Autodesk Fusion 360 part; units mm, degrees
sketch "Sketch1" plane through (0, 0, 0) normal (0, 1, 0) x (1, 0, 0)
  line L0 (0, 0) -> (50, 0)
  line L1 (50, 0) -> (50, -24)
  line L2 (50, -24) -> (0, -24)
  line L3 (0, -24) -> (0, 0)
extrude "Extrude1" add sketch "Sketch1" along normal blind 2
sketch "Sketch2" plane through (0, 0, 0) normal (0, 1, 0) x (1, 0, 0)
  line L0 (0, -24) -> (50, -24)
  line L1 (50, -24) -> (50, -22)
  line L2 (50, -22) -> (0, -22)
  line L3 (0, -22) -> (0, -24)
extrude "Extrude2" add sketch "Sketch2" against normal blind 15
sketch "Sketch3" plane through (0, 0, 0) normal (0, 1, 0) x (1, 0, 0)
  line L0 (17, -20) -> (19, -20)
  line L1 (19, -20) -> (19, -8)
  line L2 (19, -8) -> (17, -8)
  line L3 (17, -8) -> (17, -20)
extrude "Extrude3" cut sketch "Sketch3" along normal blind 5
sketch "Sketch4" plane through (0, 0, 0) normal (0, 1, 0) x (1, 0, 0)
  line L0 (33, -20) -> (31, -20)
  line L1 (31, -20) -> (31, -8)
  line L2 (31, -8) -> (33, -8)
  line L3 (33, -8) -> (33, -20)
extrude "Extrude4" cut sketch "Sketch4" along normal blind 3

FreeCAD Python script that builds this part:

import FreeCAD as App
import Part
import Sketcher

doc = App.newDocument("Part")
params = doc.addObject("Spreadsheet::Sheet", "Params")
for row, (alias, value) in enumerate([
    ("sketch1_width", "50 mm"),
    ("sketch1_height", "24 mm"),
    ("pad1_length", "2 mm"),
    ("sketch2_width", "50 mm"),
    ("sketch2_height", "2 mm"),
    ("pad2_length", "15 mm"),
    ("sketch3_width", "2 mm"),
    ("sketch3_height", "12 mm"),
    ("pocket1_length", "5 mm"),
    ("sketch4_width", "2 mm"),
    ("sketch4_height", "12 mm"),
    ("pocket2_length", "3 mm"),
], start=1):
    params.set(f"A{row}", alias)
    params.set(f"B{row}", "=" + value)
    params.setAlias(f"B{row}", alias)

body = doc.addObject("PartDesign::Body", "Body")

sketch1 = body.newObject("Sketcher::SketchObject", "Sketch")
sketch1.AttachmentSupport = (doc.getObject("XZ_Plane"), [""])
sketch1.MapMode = "FlatFace"
sketch1.addGeometry(Part.LineSegment(App.Vector(50, 0, 0), App.Vector(0, 0, 0)), False)
sketch1.addGeometry(Part.LineSegment(App.Vector(0, 0, 0), App.Vector(0, 24, 0)), False)
sketch1.addGeometry(Part.LineSegment(App.Vector(0, 24, 0), App.Vector(50, 24, 0)), False)
sketch1.addGeometry(Part.LineSegment(App.Vector(50, 24, 0), App.Vector(50, 0, 0)), False)
sketch1.addConstraint(Sketcher.Constraint("Coincident", 0, 2, 1, 1))
sketch1.addConstraint(Sketcher.Constraint("Coincident", 1, 2, 2, 1))
sketch1.addConstraint(Sketcher.Constraint("Coincident", 2, 2, 3, 1))
sketch1.addConstraint(Sketcher.Constraint("Coincident", 3, 2, 0, 1))
sketch1.addConstraint(Sketcher.Constraint("Horizontal", 0))
sketch1.addConstraint(Sketcher.Constraint("Vertical", 1))
sketch1.addConstraint(Sketcher.Constraint("Horizontal", 2))
sketch1.addConstraint(Sketcher.Constraint("Vertical", 3))
sketch1.addConstraint(Sketcher.Constraint("Coincident", 0, 2, -1, 1))
sketch1.addConstraint(Sketcher.Constraint("DistanceX", 0, 2, 0, 1, 50.0))
sketch1.addConstraint(Sketcher.Constraint("DistanceY", 1, 1, 1, 2, 24.0))
sketch1.setExpression("Constraints[9]", "Params.sketch1_width")
sketch1.setExpression("Constraints[10]", "Params.sketch1_height")
pad1 = body.newObject("PartDesign::Pad", "Pad")
pad1.Profile = sketch1
pad1.setExpression("Length", "Params.pad1_length")
pad1.Reversed = True

sketch2 = body.newObject("Sketcher::SketchObject", "Sketch001")
sketch2.AttachmentSupport = (doc.getObject("XZ_Plane"), [""])
sketch2.MapMode = "FlatFace"
sketch2.addGeometry(Part.LineSegment(App.Vector(0, 22, 0), App.Vector(0, 24, 0)), False)
sketch2.addGeometry(Part.LineSegment(App.Vector(0, 24, 0), App.Vector(50, 24, 0)), False)
sketch2.addGeometry(Part.LineSegment(App.Vector(50, 24, 0), App.Vector(50, 22, 0)), False)
sketch2.addGeometry(Part.LineSegment(App.Vector(50, 22, 0), App.Vector(0, 22, 0)), False)
sketch2.addConstraint(Sketcher.Constraint("Coincident", 0, 2, 1, 1))
sketch2.addConstraint(Sketcher.Constraint("Coincident", 1, 2, 2, 1))
sketch2.addConstraint(Sketcher.Constraint("Coincident", 2, 2, 3, 1))
sketch2.addConstraint(Sketcher.Constraint("Coincident", 3, 2, 0, 1))
sketch2.addConstraint(Sketcher.Constraint("Vertical", 0))
sketch2.addConstraint(Sketcher.Constraint("Horizontal", 1))
sketch2.addConstraint(Sketcher.Constraint("Vertical", 2))
sketch2.addConstraint(Sketcher.Constraint("Horizontal", 3))
sketch2.addConstraint(Sketcher.Constraint("PointOnObject", 0, 2, -2))
sketch2.addConstraint(Sketcher.Constraint("DistanceX", 1, 1, 1, 2, 50.0))
sketch2.addConstraint(Sketcher.Constraint("DistanceY", 0, 1, 0, 2, 2.0))
sketch2.addConstraint(Sketcher.Constraint("DistanceY", -1, 1, 0, 2, 24.0))
sketch2.setExpression("Constraints[9]", "Params.sketch2_width")
sketch2.setExpression("Constraints[10]", "Params.sketch2_height")
pad2 = body.newObject("PartDesign::Pad", "Pad001")
pad2.Profile = sketch2
pad2.setExpression("Length", "Params.pad2_length")

sketch3 = body.newObject("Sketcher::SketchObject", "Sketch002")
sketch3.AttachmentSupport = (doc.getObject("XZ_Plane"), [""])
sketch3.MapMode = "FlatFace"
sketch3.addGeometry(Part.LineSegment(App.Vector(17, 8, 0), App.Vector(17, 20, 0)), False)
sketch3.addGeometry(Part.LineSegment(App.Vector(17, 20, 0), App.Vector(19, 20, 0)), False)
sketch3.addGeometry(Part.LineSegment(App.Vector(19, 20, 0), App.Vector(19, 8, 0)), False)
sketch3.addGeometry(Part.LineSegment(App.Vector(19, 8, 0), App.Vector(17, 8, 0)), False)
sketch3.addConstraint(Sketcher.Constraint("Coincident", 0, 2, 1, 1))
sketch3.addConstraint(Sketcher.Constraint("Coincident", 1, 2, 2, 1))
sketch3.addConstraint(Sketcher.Constraint("Coincident", 2, 2, 3, 1))
sketch3.addConstraint(Sketcher.Constraint("Coincident", 3, 2, 0, 1))
sketch3.addConstraint(Sketcher.Constraint("Vertical", 0))
sketch3.addConstraint(Sketcher.Constraint("Horizontal", 1))
sketch3.addConstraint(Sketcher.Constraint("Vertical", 2))
sketch3.addConstraint(Sketcher.Constraint("Horizontal", 3))
sketch3.addConstraint(Sketcher.Constraint("DistanceX", 1, 1, 1, 2, 2.0))
sketch3.addConstraint(Sketcher.Constraint("DistanceY", 0, 1, 0, 2, 12.0))
sketch3.addConstraint(Sketcher.Constraint("DistanceX", -1, 1, 0, 2, 17.0))
sketch3.addConstraint(Sketcher.Constraint("DistanceY", -1, 1, 0, 2, 20.0))
sketch3.setExpression("Constraints[8]", "Params.sketch3_width")
sketch3.setExpression("Constraints[9]", "Params.sketch3_height")
pocket1 = body.newObject("PartDesign::Pocket", "Pocket")
pocket1.Profile = sketch3
pocket1.setExpression("Length", "Params.pocket1_length")

sketch4 = body.newObject("Sketcher::SketchObject", "Sketch003")
sketch4.AttachmentSupport = (doc.getObject("XZ_Plane"), [""])
sketch4.MapMode = "FlatFace"
sketch4.addGeometry(Part.LineSegment(App.Vector(31, 20, 0), App.Vector(33, 20, 0)), False)
sketch4.addGeometry(Part.LineSegment(App.Vector(33, 20, 0), App.Vector(33, 8, 0)), False)
sketch4.addGeometry(Part.LineSegment(App.Vector(33, 8, 0), App.Vector(31, 8, 0)), False)
sketch4.addGeometry(Part.LineSegment(App.Vector(31, 8, 0), App.Vector(31, 20, 0)), False)
sketch4.addConstraint(Sketcher.Constraint("Coincident", 0, 2, 1, 1))
sketch4.addConstraint(Sketcher.Constraint("Coincident", 1, 2, 2, 1))
sketch4.addConstraint(Sketcher.Constraint("Coincident", 2, 2, 3, 1))
sketch4.addConstraint(Sketcher.Constraint("Coincident", 3, 2, 0, 1))
sketch4.addConstraint(Sketcher.Constraint("Horizontal", 0))
sketch4.addConstraint(Sketcher.Constraint("Vertical", 1))
sketch4.addConstraint(Sketcher.Constraint("Horizontal", 2))
sketch4.addConstraint(Sketcher.Constraint("Vertical", 3))
sketch4.addConstraint(Sketcher.Constraint("DistanceX", 0, 1, 0, 2, 2.0))
sketch4.addConstraint(Sketcher.Constraint("DistanceY", 1, 2, 1, 1, 12.0))
sketch4.addConstraint(Sketcher.Constraint("DistanceX", -1, 1, 0, 2, 33.0))
sketch4.addConstraint(Sketcher.Constraint("DistanceY", -1, 1, 0, 2, 20.0))
sketch4.setExpression("Constraints[8]", "Params.sketch4_width")
sketch4.setExpression("Constraints[9]", "Params.sketch4_height")
pocket2 = body.newObject("PartDesign::Pocket", "Pocket001")
pocket2.Profile = sketch4
pocket2.setExpression("Length", "Params.pocket2_length")

doc.recompute()
